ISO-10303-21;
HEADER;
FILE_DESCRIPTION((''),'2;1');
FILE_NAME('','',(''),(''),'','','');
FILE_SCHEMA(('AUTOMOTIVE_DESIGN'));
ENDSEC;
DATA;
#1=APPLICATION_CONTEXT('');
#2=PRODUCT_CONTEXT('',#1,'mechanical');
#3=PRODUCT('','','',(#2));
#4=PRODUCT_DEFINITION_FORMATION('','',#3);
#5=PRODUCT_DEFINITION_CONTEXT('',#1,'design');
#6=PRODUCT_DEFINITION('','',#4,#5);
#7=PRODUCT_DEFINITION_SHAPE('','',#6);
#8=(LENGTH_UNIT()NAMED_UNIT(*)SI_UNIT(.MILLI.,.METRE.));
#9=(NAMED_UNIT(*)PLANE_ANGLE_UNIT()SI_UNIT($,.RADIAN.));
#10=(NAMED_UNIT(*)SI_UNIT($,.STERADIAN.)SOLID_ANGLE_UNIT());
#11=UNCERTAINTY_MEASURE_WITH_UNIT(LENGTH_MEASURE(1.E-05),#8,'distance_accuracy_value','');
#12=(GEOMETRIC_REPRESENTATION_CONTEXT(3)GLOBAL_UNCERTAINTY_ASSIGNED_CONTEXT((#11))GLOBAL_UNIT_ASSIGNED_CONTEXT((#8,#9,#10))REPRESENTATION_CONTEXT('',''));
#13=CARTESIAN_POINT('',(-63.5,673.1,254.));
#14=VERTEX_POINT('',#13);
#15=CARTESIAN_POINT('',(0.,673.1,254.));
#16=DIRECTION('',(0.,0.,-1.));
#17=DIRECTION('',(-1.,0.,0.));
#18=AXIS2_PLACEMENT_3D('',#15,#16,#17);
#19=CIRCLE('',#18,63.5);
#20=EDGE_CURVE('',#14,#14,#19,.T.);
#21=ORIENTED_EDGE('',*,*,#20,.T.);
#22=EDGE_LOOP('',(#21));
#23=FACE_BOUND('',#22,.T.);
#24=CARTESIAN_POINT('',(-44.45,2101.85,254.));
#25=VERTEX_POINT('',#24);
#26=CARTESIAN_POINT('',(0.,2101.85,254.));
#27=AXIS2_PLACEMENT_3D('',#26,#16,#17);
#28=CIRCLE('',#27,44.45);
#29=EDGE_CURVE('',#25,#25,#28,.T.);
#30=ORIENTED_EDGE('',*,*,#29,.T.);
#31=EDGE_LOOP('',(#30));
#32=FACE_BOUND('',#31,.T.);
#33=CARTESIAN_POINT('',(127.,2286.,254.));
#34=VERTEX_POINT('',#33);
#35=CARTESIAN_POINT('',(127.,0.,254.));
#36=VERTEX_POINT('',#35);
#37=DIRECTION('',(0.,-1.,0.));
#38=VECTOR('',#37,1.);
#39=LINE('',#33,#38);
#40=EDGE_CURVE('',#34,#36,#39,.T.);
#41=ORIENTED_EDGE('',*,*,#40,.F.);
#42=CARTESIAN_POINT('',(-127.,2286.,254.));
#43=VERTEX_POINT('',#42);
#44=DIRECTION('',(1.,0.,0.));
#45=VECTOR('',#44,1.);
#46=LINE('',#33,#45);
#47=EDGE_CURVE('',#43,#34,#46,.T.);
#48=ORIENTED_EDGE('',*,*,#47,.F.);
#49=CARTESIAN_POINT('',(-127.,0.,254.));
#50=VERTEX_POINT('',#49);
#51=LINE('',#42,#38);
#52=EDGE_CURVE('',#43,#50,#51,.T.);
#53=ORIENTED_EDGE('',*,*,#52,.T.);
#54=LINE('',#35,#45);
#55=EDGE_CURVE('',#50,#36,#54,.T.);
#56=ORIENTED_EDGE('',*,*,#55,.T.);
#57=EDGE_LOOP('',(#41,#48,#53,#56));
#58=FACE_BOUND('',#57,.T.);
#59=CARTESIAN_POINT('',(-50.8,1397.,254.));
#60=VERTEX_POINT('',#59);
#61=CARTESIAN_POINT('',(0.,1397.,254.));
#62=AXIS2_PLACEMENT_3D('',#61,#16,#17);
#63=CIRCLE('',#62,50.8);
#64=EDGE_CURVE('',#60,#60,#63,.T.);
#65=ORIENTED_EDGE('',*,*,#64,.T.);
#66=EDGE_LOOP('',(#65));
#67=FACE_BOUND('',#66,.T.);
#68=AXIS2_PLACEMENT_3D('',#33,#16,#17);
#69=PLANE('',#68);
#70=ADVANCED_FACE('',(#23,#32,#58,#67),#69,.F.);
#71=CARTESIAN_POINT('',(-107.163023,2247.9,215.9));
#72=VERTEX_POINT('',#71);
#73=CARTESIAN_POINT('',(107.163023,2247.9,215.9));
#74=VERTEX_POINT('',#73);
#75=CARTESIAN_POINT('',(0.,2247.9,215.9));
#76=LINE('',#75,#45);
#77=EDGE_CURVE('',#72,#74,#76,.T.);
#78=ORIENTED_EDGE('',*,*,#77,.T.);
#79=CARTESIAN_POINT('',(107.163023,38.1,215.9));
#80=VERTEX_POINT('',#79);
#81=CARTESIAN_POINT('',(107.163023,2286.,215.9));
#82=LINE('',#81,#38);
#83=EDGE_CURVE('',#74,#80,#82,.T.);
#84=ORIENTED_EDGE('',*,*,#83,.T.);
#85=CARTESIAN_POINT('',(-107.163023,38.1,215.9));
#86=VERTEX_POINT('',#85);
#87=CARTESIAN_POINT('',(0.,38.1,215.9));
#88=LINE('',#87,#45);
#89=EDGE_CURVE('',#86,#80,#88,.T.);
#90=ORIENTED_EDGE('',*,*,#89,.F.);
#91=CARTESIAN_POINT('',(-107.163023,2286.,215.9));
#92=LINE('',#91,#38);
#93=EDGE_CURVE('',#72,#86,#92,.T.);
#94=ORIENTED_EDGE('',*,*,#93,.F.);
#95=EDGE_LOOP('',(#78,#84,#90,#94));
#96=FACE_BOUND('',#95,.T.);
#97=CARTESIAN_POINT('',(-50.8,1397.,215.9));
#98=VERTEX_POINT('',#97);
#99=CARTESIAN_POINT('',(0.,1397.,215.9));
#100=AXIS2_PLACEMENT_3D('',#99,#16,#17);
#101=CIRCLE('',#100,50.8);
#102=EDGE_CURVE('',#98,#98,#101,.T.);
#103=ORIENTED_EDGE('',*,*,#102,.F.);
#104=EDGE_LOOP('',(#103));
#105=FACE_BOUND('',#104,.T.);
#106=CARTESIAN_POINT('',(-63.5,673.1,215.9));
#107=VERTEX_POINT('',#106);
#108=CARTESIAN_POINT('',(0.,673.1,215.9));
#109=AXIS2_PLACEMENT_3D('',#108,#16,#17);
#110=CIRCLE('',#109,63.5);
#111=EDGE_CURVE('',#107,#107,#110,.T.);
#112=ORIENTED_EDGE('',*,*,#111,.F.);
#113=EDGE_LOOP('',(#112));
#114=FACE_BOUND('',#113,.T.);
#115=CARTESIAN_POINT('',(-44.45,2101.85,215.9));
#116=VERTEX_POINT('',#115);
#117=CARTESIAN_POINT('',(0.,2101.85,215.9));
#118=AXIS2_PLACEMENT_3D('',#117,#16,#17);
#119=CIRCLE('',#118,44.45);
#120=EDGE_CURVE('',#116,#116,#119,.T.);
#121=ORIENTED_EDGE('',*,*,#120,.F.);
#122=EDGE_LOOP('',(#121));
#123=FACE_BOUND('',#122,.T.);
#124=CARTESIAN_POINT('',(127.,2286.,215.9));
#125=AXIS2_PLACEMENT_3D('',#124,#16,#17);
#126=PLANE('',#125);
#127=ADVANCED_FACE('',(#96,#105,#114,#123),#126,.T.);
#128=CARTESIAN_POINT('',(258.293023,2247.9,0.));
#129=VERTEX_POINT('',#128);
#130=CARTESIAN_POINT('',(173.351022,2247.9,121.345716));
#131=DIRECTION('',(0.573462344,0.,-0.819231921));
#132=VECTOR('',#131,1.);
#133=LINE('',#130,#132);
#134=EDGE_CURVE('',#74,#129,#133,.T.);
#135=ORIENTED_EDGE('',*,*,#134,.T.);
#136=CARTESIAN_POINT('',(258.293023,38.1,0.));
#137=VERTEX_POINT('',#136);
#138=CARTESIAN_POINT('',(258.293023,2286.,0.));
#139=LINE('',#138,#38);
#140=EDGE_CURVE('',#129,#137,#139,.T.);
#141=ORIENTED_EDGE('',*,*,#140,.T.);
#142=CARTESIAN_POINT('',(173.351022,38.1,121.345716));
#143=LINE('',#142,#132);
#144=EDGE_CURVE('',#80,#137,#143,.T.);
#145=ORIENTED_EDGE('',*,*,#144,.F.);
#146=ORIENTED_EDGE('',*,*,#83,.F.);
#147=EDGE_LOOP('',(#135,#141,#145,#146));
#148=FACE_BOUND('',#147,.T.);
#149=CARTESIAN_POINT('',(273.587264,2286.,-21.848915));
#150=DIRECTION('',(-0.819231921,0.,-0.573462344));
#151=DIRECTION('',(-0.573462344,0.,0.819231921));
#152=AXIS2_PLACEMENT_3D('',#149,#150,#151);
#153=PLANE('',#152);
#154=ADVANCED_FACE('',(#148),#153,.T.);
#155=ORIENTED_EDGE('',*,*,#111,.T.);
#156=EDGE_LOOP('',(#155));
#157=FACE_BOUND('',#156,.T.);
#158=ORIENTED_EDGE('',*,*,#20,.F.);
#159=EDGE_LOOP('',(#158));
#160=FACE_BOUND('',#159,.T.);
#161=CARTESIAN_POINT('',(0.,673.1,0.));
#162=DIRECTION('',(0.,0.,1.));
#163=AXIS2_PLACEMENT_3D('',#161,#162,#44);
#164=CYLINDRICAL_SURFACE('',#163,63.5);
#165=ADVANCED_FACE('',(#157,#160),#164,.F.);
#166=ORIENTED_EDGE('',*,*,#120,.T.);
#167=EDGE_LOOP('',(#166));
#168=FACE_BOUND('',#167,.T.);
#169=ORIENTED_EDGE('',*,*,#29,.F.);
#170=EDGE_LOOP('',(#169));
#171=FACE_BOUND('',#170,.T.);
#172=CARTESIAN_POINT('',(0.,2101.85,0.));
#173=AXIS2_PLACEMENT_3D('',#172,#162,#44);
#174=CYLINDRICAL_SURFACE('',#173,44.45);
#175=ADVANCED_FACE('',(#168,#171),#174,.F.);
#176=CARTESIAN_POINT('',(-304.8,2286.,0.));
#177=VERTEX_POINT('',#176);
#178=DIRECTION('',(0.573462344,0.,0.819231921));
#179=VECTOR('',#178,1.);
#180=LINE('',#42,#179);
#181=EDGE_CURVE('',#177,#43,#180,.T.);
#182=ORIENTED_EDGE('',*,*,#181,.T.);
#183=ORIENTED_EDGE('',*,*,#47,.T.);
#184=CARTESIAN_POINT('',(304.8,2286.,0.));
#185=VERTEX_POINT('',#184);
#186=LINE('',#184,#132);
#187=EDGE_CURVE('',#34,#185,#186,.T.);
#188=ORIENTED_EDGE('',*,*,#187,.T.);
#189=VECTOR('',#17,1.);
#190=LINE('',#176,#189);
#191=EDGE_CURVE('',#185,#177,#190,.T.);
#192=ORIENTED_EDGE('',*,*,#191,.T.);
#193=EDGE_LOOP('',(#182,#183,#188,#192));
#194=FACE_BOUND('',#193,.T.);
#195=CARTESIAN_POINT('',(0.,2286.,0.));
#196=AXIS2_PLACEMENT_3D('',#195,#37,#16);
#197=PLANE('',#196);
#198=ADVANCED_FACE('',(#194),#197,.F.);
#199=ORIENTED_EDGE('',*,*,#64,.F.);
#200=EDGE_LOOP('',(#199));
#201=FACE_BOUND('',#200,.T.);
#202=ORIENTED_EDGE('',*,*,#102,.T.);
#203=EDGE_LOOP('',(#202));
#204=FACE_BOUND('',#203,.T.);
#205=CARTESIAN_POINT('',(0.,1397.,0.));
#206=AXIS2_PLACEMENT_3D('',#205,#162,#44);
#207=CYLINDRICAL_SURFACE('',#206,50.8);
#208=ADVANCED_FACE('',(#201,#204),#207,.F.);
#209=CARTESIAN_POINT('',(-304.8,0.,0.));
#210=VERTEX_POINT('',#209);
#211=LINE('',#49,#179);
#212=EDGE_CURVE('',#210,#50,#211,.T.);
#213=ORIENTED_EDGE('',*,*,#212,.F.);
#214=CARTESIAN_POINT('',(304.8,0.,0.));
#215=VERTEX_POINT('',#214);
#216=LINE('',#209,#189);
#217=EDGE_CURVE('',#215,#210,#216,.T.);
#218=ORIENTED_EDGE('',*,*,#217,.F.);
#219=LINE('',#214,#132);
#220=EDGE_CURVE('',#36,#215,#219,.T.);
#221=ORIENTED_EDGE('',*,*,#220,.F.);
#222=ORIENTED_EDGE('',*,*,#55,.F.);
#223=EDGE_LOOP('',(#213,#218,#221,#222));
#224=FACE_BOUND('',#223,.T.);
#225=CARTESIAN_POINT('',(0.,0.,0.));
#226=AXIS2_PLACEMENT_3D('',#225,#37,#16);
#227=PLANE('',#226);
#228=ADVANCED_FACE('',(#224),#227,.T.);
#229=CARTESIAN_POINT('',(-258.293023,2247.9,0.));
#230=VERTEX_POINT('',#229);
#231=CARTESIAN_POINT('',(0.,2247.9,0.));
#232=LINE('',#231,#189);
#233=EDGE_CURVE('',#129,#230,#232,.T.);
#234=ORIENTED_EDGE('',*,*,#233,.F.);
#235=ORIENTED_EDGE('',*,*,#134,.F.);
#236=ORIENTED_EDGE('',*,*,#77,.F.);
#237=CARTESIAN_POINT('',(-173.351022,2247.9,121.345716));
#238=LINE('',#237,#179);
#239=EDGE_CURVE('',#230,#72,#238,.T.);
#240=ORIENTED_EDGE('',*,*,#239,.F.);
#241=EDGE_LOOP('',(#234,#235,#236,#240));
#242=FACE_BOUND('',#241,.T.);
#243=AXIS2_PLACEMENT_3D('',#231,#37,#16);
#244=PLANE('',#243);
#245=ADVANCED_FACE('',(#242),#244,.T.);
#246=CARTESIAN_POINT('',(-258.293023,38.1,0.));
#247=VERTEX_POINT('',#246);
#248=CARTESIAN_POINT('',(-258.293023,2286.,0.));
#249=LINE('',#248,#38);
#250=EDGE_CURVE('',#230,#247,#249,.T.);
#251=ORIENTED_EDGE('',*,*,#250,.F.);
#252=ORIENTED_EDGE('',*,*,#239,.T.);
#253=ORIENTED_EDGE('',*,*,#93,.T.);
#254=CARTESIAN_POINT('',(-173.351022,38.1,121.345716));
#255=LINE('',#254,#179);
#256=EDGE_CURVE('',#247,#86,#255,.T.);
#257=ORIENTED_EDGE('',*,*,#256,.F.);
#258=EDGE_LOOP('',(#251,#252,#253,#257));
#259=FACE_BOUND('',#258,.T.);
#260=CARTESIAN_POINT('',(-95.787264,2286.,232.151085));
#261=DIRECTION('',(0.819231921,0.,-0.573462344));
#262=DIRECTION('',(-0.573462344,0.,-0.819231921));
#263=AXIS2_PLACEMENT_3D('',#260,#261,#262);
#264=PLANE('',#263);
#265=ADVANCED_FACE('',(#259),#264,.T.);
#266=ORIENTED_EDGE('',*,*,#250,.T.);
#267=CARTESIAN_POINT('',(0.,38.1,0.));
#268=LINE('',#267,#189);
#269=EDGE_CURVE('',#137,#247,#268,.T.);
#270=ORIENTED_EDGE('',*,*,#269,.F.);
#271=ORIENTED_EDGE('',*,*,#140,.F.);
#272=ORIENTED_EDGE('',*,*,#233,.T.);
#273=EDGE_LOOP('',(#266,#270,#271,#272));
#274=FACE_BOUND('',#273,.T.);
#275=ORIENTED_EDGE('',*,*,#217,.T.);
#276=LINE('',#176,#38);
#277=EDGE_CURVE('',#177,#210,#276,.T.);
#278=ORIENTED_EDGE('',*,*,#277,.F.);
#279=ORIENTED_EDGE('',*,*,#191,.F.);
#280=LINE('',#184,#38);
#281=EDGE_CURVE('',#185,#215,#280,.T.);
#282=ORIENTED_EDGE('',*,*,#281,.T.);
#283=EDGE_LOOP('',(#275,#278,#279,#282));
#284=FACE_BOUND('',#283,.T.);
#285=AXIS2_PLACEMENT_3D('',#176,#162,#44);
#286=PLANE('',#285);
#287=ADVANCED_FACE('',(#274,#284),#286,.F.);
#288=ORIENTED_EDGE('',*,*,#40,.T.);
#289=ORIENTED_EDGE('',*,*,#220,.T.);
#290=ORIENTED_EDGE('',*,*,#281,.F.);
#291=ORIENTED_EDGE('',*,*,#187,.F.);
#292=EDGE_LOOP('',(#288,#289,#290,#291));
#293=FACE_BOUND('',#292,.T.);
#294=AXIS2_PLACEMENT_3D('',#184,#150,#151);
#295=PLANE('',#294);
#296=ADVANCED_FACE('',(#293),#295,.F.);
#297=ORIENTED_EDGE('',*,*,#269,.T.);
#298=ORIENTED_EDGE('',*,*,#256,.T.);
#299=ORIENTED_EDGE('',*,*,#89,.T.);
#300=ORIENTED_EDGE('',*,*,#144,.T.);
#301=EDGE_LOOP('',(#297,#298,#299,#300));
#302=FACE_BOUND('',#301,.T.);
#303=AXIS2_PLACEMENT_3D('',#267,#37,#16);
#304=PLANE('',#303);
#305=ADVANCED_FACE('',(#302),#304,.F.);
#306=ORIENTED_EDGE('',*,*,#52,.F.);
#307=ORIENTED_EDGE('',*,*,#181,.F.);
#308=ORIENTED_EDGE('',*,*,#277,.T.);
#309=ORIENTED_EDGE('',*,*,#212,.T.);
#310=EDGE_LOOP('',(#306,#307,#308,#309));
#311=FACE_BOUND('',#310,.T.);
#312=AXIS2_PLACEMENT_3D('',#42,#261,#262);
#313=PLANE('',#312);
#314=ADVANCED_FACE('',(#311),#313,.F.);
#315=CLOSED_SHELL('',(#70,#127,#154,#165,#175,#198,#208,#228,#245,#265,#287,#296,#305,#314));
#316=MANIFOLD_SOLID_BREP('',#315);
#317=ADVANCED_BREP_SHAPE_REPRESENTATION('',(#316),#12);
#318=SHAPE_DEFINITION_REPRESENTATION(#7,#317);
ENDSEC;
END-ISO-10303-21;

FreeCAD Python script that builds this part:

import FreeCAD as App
import Part
import Sketcher
from FreeCAD import Vector
Q = App.Units.Quantity


def faces_at(feature, points):
    """Names of the faces that lie closest to the given points."""
    faces = feature.Shape.Faces
    near = lambda p: min(range(len(faces)), key=lambda i: faces[i].distToShape(Part.Vertex(*p))[0])
    return sorted({f"Face{near(p) + 1}" for p in points})

doc = App.newDocument("Part")
body = doc.addObject("PartDesign::Body", "Body")

# Sketch on XZ plane
sketch1 = body.newObject("Sketcher::SketchObject", "Sketch")
sketch1.AttachmentSupport = (doc.getObject("XZ_Plane"), [""])
sketch1.MapMode = "FlatFace"
sketch1.addGeometry([
    Part.LineSegment(Vector(305, 0, 0), Vector(-305, 0, 0)),
    Part.LineSegment(Vector(-305, 0, 0), Vector(-127, 254, 0)),
    Part.LineSegment(Vector(-127, 254, 0), Vector(127, 254, 0)),
    Part.LineSegment(Vector(127, 254, 0), Vector(305, 0, 0)),
], False)
sketch1.addConstraint([
    Sketcher.Constraint("Coincident", 0, 2, 1, 1),
    Sketcher.Constraint("Coincident", 1, 2, 2, 1),
    Sketcher.Constraint("Coincident", 2, 2, 3, 1),
    Sketcher.Constraint("Coincident", 3, 2, 0, 1),
    Sketcher.Constraint("Horizontal", 0),
    Sketcher.Constraint("Horizontal", 2),
    Sketcher.Constraint("Symmetric", 0, 2, 3, 2, -1, 1),
    Sketcher.Constraint("Equal", 1, 3),
    Sketcher.Constraint("DistanceX", 0, 2, 0, 1, Q("24 in")),
    Sketcher.Constraint("DistanceX", 2, 1, 2, 2, Q("10 in")),
    Sketcher.Constraint("DistanceY", -1, 1, 1, 2, Q("10 in")),
])
pad1 = body.newObject("PartDesign::Pad", "Pad")
pad1.Profile = sketch1
pad1.Length = Q("90 in")
pad1.Reversed = True
doc.recompute()

thickness = body.newObject("PartDesign::Thickness", "Thickness")
thickness.Base = (pad1, faces_at(pad1, [(0, 1143, 0)]))
thickness.Value = Q("1.5 in")
thickness.Reversed = True
thickness.Join = "Intersection"

# Sketch on XY plane
sketch2 = body.newObject("Sketcher::SketchObject", "Sketch001")
sketch2.AttachmentSupport = (doc.getObject("XY_Plane"), [""])
sketch2.MapMode = "FlatFace"
sketch2.AttachmentOffset = App.Placement(Vector(0, 0, 10 * 25.4), App.Rotation())
sketch2.addGeometry([
    Part.Circle(Vector(0, 2102, 0), Vector(0, 0, 1), 44),
    Part.Circle(Vector(0, 1397, 0), Vector(0, 0, 1), 51),
    Part.Circle(Vector(0, 673, 0), Vector(0, 0, 1), 64),
], False)
sketch2.addConstraint([
    Sketcher.Constraint("PointOnObject", 0, 3, -2),
    Sketcher.Constraint("PointOnObject", 1, 3, -2),
    Sketcher.Constraint("PointOnObject", 2, 3, -2),
    Sketcher.Constraint("Diameter", 1, Q("4 in")),
    Sketcher.Constraint("Diameter", 2, Q("5 in")),
    Sketcher.Constraint("Diameter", 0, Q("3.5 in")),
    Sketcher.Constraint("DistanceY", -1, 1, 1, 3, Q("55 in")),
    Sketcher.Constraint("DistanceY", -1, 1, 2, 3, Q("26.5 in")),
    Sketcher.Constraint("DistanceY", -1, 1, 0, 3, Q("82.75 in")),
])
pocket1 = body.newObject("PartDesign::Pocket", "Pocket")
pocket1.Profile = sketch2
pocket1.Type = "ThroughAll"
pocket1.Midplane = True

doc.recompute()
